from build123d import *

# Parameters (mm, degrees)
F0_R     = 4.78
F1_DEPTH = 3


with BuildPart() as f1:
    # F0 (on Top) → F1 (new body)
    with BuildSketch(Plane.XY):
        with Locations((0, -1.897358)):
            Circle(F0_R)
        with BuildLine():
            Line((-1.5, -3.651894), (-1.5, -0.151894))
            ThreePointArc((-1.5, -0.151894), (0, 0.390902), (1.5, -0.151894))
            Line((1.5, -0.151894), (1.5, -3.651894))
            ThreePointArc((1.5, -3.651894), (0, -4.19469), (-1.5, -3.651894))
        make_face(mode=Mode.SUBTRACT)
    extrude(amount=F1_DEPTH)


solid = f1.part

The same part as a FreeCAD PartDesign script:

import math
import FreeCAD as App
import Part
import Sketcher

V = App.Vector

doc = App.newDocument("Part")
body = doc.addObject("PartDesign::Body", "Body")

sketch1 = doc.addObject("Sketcher::SketchObject", "Sketch")
body.addObject(sketch1)
sketch1.AttachmentSupport = (doc.XY_Plane, [""])
sketch1.MapMode = "FlatFace"
sketch1.addGeometry(Part.Circle(V(0, -1.9, 0), V(0, 0, 1), 4.8), False)
sketch1.addGeometry(Part.ArcOfCircle(Part.Circle(V(0, -1.9, 0), V(0, 0, 1), 2.3), math.radians(-130), math.radians(-50)), False)
sketch1.addGeometry(Part.LineSegment(V(-1.5, -3.7, 0), V(-1.5, -0.2, 0)), False)
sketch1.addGeometry(Part.ArcOfCircle(Part.Circle(V(0, -2, 0), V(0, 0, 1), 2.3), math.radians(50), math.radians(130)), False)
sketch1.addGeometry(Part.LineSegment(V(1.5, -0.2, 0), V(1.5, -3.7, 0)), False)
sketch1.addConstraint(Sketcher.Constraint("Coincident", 1, 1, 2, 1))
sketch1.addConstraint(Sketcher.Constraint("Coincident", 2, 2, 3, 2))
sketch1.addConstraint(Sketcher.Constraint("Coincident", 3, 1, 4, 1))
sketch1.addConstraint(Sketcher.Constraint("Coincident", 4, 2, 1, 2))
sketch1.addConstraint(Sketcher.Constraint("Vertical", 2))
sketch1.addConstraint(Sketcher.Constraint("Vertical", 4))
sketch1.addConstraint(Sketcher.Constraint("Equal", 1, 3))
sketch1.addConstraint(Sketcher.Constraint("Symmetric", 2, 2, 3, 1, -2))
sketch1.addConstraint(Sketcher.Constraint("PointOnObject", 0, 3, -2))
sketch1.addConstraint(Sketcher.Constraint("PointOnObject", 1, 3, -2))
sketch1.addConstraint(Sketcher.Constraint("Diameter", 0, 9.56))
sketch1.addConstraint(Sketcher.Constraint("DistanceY", 2, 1, 2, 2, 3.5))
sketch1.addConstraint(Sketcher.Constraint("Radius", 1, 2.344))
sketch1.addConstraint(Sketcher.Constraint("DistanceX", 2, 2, 3, 1, 3.0))
sketch1.addConstraint(Sketcher.Constraint("DistanceY", 0, 3, -1, 1, 1.897358))
sketch1.addConstraint(Sketcher.Constraint("DistanceY", 1, 3, -1, 1, 1.85069))
pad1 = doc.addObject("PartDesign::Pad", "Pad")
body.addObject(pad1)
pad1.Profile = sketch1
pad1.Length = 3

doc.recompute()
